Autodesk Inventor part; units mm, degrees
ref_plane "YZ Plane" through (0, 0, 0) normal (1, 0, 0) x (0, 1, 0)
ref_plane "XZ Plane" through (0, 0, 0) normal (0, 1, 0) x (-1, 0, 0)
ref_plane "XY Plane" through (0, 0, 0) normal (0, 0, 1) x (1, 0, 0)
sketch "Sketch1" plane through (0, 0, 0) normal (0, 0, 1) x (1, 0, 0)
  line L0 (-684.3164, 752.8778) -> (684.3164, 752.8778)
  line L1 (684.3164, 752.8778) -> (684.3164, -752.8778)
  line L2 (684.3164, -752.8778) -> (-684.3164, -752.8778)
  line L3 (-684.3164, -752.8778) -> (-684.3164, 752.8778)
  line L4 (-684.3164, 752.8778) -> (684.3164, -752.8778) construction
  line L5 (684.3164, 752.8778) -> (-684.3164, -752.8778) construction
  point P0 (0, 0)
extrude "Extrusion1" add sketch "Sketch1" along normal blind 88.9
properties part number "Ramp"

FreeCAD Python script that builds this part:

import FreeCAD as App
import Part
import Sketcher
Q = App.Units.Quantity


def add_polygon(sketch, points):
    """Adds a closed chain of lines whose ends are joined by coincident constraints."""
    first, n = sketch.GeometryCount, len(points)
    for a, b in zip(points, points[1:] + points[:1]):
        sketch.addGeometry(Part.LineSegment(App.Vector(*a, 0), App.Vector(*b, 0)), False)
    for i in range(n):
        sketch.addConstraint(Sketcher.Constraint("Coincident", first + i, 2, first + (i + 1) % n, 1))

doc = App.newDocument("Part")
body = doc.addObject("PartDesign::Body", "Body")

sketch1 = body.newObject("Sketcher::SketchObject", "Sketch")
sketch1.AttachmentSupport = (doc.getObject("XY_Plane"), [""])
sketch1.MapMode = "FlatFace"
add_polygon(sketch1, [(684, 753), (-684, 753), (-684, -753), (684, -753)])
sketch1.addConstraint([
    Sketcher.Constraint("Horizontal", 0),
    Sketcher.Constraint("Vertical", 1),
    Sketcher.Constraint("Horizontal", 2),
    Sketcher.Constraint("Vertical", 3),
    Sketcher.Constraint("Symmetric", 0, 2, 2, 2, -1, 1),
    Sketcher.Constraint("DistanceX", 0, 2, 0, 1, Q("1368.6328 mm")),
    Sketcher.Constraint("DistanceY", 1, 2, 1, 1, Q("1505.7556 mm")),
])
pad1 = body.newObject("PartDesign::Pad", "Pad")
pad1.Profile = sketch1
pad1.Length = Q("3.5 in")

doc.recompute()
